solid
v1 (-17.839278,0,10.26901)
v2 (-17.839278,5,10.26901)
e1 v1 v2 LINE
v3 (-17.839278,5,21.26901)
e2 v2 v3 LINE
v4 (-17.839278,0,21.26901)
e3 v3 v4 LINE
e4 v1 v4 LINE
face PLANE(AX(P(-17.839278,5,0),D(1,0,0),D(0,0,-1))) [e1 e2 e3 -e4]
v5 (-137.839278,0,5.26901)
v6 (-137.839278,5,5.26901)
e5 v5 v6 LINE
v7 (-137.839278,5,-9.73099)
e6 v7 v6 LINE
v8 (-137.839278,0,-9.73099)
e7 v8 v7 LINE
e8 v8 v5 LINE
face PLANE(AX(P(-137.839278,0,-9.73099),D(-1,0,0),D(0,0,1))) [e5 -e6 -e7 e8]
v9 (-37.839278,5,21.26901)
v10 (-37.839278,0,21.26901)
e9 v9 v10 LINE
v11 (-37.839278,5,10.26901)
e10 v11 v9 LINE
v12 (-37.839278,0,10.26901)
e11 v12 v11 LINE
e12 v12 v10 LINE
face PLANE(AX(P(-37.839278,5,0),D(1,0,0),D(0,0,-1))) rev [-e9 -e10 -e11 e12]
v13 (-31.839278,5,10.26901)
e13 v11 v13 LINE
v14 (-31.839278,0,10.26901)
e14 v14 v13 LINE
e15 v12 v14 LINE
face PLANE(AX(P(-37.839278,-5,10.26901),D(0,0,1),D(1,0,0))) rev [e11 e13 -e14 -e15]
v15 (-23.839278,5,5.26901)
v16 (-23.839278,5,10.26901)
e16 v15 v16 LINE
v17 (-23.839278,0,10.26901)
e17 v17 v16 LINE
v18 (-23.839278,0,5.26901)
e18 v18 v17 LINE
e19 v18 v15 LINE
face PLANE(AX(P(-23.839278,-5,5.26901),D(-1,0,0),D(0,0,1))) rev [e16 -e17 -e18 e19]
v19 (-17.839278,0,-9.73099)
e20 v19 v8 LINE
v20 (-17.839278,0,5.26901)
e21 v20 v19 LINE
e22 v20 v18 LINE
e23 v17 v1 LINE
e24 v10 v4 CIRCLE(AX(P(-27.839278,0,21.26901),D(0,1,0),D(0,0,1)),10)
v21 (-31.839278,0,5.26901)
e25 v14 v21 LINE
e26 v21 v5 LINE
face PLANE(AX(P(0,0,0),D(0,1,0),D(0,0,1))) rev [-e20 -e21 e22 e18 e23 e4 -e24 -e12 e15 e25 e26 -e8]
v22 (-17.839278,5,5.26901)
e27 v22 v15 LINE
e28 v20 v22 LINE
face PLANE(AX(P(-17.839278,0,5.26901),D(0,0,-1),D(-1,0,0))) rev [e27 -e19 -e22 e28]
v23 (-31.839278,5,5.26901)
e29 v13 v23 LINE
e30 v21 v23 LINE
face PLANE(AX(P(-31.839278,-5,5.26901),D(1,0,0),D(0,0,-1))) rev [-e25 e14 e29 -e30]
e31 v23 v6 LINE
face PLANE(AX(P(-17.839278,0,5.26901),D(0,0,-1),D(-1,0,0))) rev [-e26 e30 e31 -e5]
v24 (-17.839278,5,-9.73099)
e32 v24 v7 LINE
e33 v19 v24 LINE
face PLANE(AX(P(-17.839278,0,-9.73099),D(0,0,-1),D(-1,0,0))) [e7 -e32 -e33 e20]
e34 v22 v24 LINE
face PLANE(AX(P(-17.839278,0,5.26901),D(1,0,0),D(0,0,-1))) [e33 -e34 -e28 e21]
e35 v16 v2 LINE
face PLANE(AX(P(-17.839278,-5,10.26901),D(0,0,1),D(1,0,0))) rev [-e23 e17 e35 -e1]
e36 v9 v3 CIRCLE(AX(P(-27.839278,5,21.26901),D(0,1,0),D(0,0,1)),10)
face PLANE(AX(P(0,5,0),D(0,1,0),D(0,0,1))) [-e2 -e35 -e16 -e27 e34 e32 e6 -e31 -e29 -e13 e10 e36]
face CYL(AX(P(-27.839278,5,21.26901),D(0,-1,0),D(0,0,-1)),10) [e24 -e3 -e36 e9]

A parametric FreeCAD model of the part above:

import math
import FreeCAD as App
import Part
import Sketcher

V = App.Vector


def add_polygon(sketch, points):
    """Adds a closed chain of lines whose ends are joined by coincident constraints."""
    first, n = sketch.GeometryCount, len(points)
    for a, b in zip(points, points[1:] + points[:1]):
        sketch.addGeometry(Part.LineSegment(App.Vector(*a, 0), App.Vector(*b, 0)), False)
    for i in range(n):
        sketch.addConstraint(Sketcher.Constraint("Coincident", first + i, 2, first + (i + 1) % n, 1))

doc = App.newDocument("Part")
body = doc.addObject("PartDesign::Body", "Body")

# Sketch on XZ plane
sketch1 = body.newObject("Sketcher::SketchObject", "Sketch")
sketch1.AttachmentSupport = (doc.getObject("XZ_Plane"), [""])
sketch1.MapMode = "FlatFace"
sketch1.addGeometry([
    Part.ArcOfCircle(Part.Circle(V(-28, 21, 0), V(0, 0, 1), 10), math.radians(0), math.radians(180)),
    Part.LineSegment(V(-18, 21, 0), V(-18, 5, 0)),
    Part.LineSegment(V(-18, 5, 0), V(-38, 5, 0)),
    Part.LineSegment(V(-38, 5, 0), V(-38, 21, 0)),
], False)
sketch1.addConstraint([
    Sketcher.Constraint("Tangent", 0, 1, 1, 1),
    Sketcher.Constraint("Coincident", 1, 2, 2, 1),
    Sketcher.Constraint("Coincident", 2, 2, 3, 1),
    Sketcher.Constraint("Tangent", 3, 2, 0, 2),
    Sketcher.Constraint("Vertical", 1),
    Sketcher.Constraint("Horizontal", 2),
    Sketcher.Constraint("Vertical", 3),
    Sketcher.Constraint("Radius", 0, 10.0),
    Sketcher.Constraint("DistanceY", 1, 2, 1, 1, 16.0),
    Sketcher.Constraint("DistanceX", 0, 3, -1, 1, 27.839278),
    Sketcher.Constraint("DistanceY", -1, 1, 0, 3, 21.26901),
])
pad1 = body.newObject("PartDesign::Pad", "Pad")
pad1.Profile = sketch1
pad1.Length = 5
pad1.Reversed = True

# Sketch on XZ plane
sketch2 = body.newObject("Sketcher::SketchObject", "Sketch001")
sketch2.AttachmentSupport = (doc.getObject("XZ_Plane"), [""])
sketch2.MapMode = "FlatFace"
sketch2.AttachmentOffset = App.Placement(V(0, 0, -5), App.Rotation())
add_polygon(sketch2, [(-37.8, 5.3), (-37.8, 10.3), (-31.8, 10.3), (-31.8, 5.3)])  # lines 0-3
add_polygon(sketch2, [(-23.8, 5.3), (-23.8, 10.3), (-17.8, 10.3), (-17.8, 5.3)])  # lines 4-7
sketch2.addConstraint([
    Sketcher.Constraint("Vertical", 0),
    Sketcher.Constraint("Horizontal", 1),
    Sketcher.Constraint("Vertical", 2),
    Sketcher.Constraint("Horizontal", 3),
    Sketcher.Constraint("Vertical", 4),
    Sketcher.Constraint("Horizontal", 5),
    Sketcher.Constraint("Vertical", 6),
    Sketcher.Constraint("Horizontal", 7),
    Sketcher.Constraint("Horizontal", 1, 2, 4, 2),
    Sketcher.Constraint("Horizontal", 3, 2, 6, 2),
    Sketcher.Constraint("Equal", 3, 5),
    Sketcher.Constraint("DistanceX", 1, 1, 1, 2, 6.0),
    Sketcher.Constraint("DistanceY", 0, 1, 0, 2, 5.0),
    Sketcher.Constraint("DistanceX", 1, 2, 4, 2, 8.0),
    Sketcher.Constraint("DistanceX", 0, 2, -1, 1, 37.839278),
    Sketcher.Constraint("DistanceY", -1, 1, 0, 2, 10.26901),
])
pocket1 = body.newObject("PartDesign::Pocket", "Pocket")
pocket1.Profile = sketch2
pocket1.Length = 10
pocket1.Reversed = True

# Sketch on XZ plane
sketch3 = body.newObject("Sketcher::SketchObject", "Sketch002")
sketch3.AttachmentSupport = (doc.getObject("XZ_Plane"), [""])
sketch3.MapMode = "FlatFace"
sketch3.AttachmentOffset = App.Placement(V(0, 0, -5), App.Rotation())
add_polygon(sketch3, [(-138, -10), (-138, 5), (-18, 5), (-18, -10)])  # lines 0-3
sketch3.addConstraint([
    Sketcher.Constraint("Vertical", 0),
    Sketcher.Constraint("Horizontal", 1),
    Sketcher.Constraint("Vertical", 2),
    Sketcher.Constraint("Horizontal", 3),
    Sketcher.Constraint("DistanceX", 1, 1, 1, 2, 120.0),
    Sketcher.Constraint("DistanceY", 0, 1, 0, 2, 15.0),
    Sketcher.Constraint("DistanceX", 0, 2, -1, 1, 137.839278),
    Sketcher.Constraint("DistanceY", -1, 1, 0, 2, 5.26901),
])
pad2 = body.newObject("PartDesign::Pad", "Pad001")
pad2.Profile = sketch3
pad2.Length = 5

doc.recompute()
